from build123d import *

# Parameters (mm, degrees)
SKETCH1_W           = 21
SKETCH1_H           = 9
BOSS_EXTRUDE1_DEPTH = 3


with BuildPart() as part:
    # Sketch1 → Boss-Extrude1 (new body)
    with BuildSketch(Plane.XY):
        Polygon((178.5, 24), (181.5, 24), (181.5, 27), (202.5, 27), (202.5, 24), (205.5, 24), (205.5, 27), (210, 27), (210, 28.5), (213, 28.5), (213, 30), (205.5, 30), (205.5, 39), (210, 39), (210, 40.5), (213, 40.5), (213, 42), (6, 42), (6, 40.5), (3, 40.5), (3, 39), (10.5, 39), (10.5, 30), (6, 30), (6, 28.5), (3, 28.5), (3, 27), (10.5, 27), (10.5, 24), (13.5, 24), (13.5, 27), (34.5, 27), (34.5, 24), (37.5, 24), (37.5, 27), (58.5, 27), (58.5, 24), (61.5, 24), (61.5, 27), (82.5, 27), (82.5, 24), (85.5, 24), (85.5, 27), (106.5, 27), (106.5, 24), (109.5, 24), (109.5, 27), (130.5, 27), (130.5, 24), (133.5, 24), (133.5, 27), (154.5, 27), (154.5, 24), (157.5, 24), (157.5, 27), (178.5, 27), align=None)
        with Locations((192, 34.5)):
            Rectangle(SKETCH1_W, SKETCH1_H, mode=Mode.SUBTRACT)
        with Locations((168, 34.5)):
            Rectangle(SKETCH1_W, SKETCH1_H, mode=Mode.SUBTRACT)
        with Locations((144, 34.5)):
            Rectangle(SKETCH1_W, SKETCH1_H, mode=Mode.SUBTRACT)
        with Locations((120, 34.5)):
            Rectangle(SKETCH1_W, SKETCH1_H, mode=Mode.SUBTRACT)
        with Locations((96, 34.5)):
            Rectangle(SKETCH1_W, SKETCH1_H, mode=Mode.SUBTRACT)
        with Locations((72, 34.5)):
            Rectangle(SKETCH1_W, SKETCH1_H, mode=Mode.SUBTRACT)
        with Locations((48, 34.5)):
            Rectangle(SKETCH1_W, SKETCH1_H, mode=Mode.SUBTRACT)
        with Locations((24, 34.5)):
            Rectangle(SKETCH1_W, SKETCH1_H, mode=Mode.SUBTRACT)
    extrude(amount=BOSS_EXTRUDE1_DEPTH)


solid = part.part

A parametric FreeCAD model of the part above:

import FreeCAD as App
import Part
import Sketcher

V = App.Vector

doc = App.newDocument("Part")
body = doc.addObject("PartDesign::Body", "Body")

# Sketch on XY plane
sketch1 = doc.addObject("Sketcher::SketchObject", "Sketch")
body.addObject(sketch1)
sketch1.AttachmentSupport = (doc.XY_Plane, [""])
sketch1.MapMode = "FlatFace"
sketch1.addGeometry([
    Part.LineSegment(V(178.5, 24, 0), V(181.5, 24, 0)),  # 0
    Part.LineSegment(V(181.5, 24, 0), V(181.5, 27, 0)),  # 1
    Part.LineSegment(V(181.5, 27, 0), V(202.5, 27, 0)),  # 2
    Part.LineSegment(V(202.5, 27, 0), V(202.5, 24, 0)),  # 3
    Part.LineSegment(V(202.5, 24, 0), V(205.5, 24, 0)),  # 4
    Part.LineSegment(V(205.5, 24, 0), V(205.5, 27, 0)),  # 5
    Part.LineSegment(V(205.5, 27, 0), V(210, 27, 0)),  # 6
    Part.LineSegment(V(210, 27, 0), V(210, 28.5, 0)),  # 7
    Part.LineSegment(V(210, 28.5, 0), V(213, 28.5, 0)),  # 8
    Part.LineSegment(V(213, 28.5, 0), V(213, 30, 0)),  # 9
    Part.LineSegment(V(213, 30, 0), V(205.5, 30, 0)),  # 10
    Part.LineSegment(V(205.5, 30, 0), V(205.5, 39, 0)),  # 11
    Part.LineSegment(V(205.5, 39, 0), V(210, 39, 0)),  # 12
    Part.LineSegment(V(210, 39, 0), V(210, 40.5, 0)),  # 13
    Part.LineSegment(V(210, 40.5, 0), V(213, 40.5, 0)),  # 14
    Part.LineSegment(V(213, 40.5, 0), V(213, 42, 0)),  # 15
    Part.LineSegment(V(213, 42, 0), V(6, 42, 0)),  # 16
    Part.LineSegment(V(6, 42, 0), V(6, 40.5, 0)),  # 17
    Part.LineSegment(V(6, 40.5, 0), V(3, 40.5, 0)),  # 18
    Part.LineSegment(V(3, 40.5, 0), V(3, 39, 0)),  # 19
    Part.LineSegment(V(3, 39, 0), V(10.5, 39, 0)),  # 20
    Part.LineSegment(V(10.5, 39, 0), V(10.5, 30, 0)),  # 21
    Part.LineSegment(V(10.5, 30, 0), V(6, 30, 0)),  # 22
    Part.LineSegment(V(6, 30, 0), V(6, 28.5, 0)),  # 23
    Part.LineSegment(V(6, 28.5, 0), V(3, 28.5, 0)),  # 24
    Part.LineSegment(V(3, 28.5, 0), V(3, 27, 0)),  # 25
    Part.LineSegment(V(3, 27, 0), V(10.5, 27, 0)),  # 26
    Part.LineSegment(V(10.5, 27, 0), V(10.5, 24, 0)),  # 27
    Part.LineSegment(V(10.5, 24, 0), V(13.5, 24, 0)),  # 28
    Part.LineSegment(V(13.5, 24, 0), V(13.5, 27, 0)),  # 29
    Part.LineSegment(V(13.5, 27, 0), V(34.5, 27, 0)),  # 30
    Part.LineSegment(V(34.5, 27, 0), V(34.5, 24, 0)),  # 31
    Part.LineSegment(V(34.5, 24, 0), V(37.5, 24, 0)),  # 32
    Part.LineSegment(V(37.5, 24, 0), V(37.5, 27, 0)),  # 33
    Part.LineSegment(V(37.5, 27, 0), V(58.5, 27, 0)),  # 34
    Part.LineSegment(V(58.5, 27, 0), V(58.5, 24, 0)),  # 35
    Part.LineSegment(V(58.5, 24, 0), V(61.5, 24, 0)),  # 36
    Part.LineSegment(V(61.5, 24, 0), V(61.5, 27, 0)),  # 37
    Part.LineSegment(V(61.5, 27, 0), V(82.5, 27, 0)),  # 38
    Part.LineSegment(V(82.5, 27, 0), V(82.5, 24, 0)),  # 39
    Part.LineSegment(V(82.5, 24, 0), V(85.5, 24, 0)),  # 40
    Part.LineSegment(V(85.5, 24, 0), V(85.5, 27, 0)),  # 41
    Part.LineSegment(V(85.5, 27, 0), V(106.5, 27, 0)),  # 42
    Part.LineSegment(V(106.5, 27, 0), V(106.5, 24, 0)),  # 43
    Part.LineSegment(V(106.5, 24, 0), V(109.5, 24, 0)),  # 44
    Part.LineSegment(V(109.5, 24, 0), V(109.5, 27, 0)),  # 45
    Part.LineSegment(V(109.5, 27, 0), V(130.5, 27, 0)),  # 46
    Part.LineSegment(V(130.5, 27, 0), V(130.5, 24, 0)),  # 47
    Part.LineSegment(V(130.5, 24, 0), V(133.5, 24, 0)),  # 48
    Part.LineSegment(V(133.5, 24, 0), V(133.5, 27, 0)),  # 49
    Part.LineSegment(V(133.5, 27, 0), V(154.5, 27, 0)),  # 50
    Part.LineSegment(V(154.5, 27, 0), V(154.5, 24, 0)),  # 51
    Part.LineSegment(V(154.5, 24, 0), V(157.5, 24, 0)),  # 52
    Part.LineSegment(V(157.5, 24, 0), V(157.5, 27, 0)),  # 53
    Part.LineSegment(V(157.5, 27, 0), V(178.5, 27, 0)),  # 54
    Part.LineSegment(V(178.5, 27, 0), V(178.5, 24, 0)),  # 55
    Part.LineSegment(V(34.5, 30, 0), V(13.5, 30, 0)),  # 56
    Part.LineSegment(V(13.5, 30, 0), V(13.5, 39, 0)),  # 57
    Part.LineSegment(V(13.5, 39, 0), V(34.5, 39, 0)),  # 58
    Part.LineSegment(V(34.5, 39, 0), V(34.5, 30, 0)),  # 59
    Part.LineSegment(V(58.5, 30, 0), V(37.5, 30, 0)),  # 60
    Part.LineSegment(V(37.5, 30, 0), V(37.5, 39, 0)),  # 61
    Part.LineSegment(V(37.5, 39, 0), V(58.5, 39, 0)),  # 62
    Part.LineSegment(V(58.5, 39, 0), V(58.5, 30, 0)),  # 63
    Part.LineSegment(V(82.5, 30, 0), V(61.5, 30, 0)),  # 64
    Part.LineSegment(V(61.5, 30, 0), V(61.5, 39, 0)),  # 65
    Part.LineSegment(V(61.5, 39, 0), V(82.5, 39, 0)),  # 66
    Part.LineSegment(V(82.5, 39, 0), V(82.5, 30, 0)),  # 67
    Part.LineSegment(V(106.5, 30, 0), V(85.5, 30, 0)),  # 68
    Part.LineSegment(V(85.5, 30, 0), V(85.5, 39, 0)),  # 69
    Part.LineSegment(V(85.5, 39, 0), V(106.5, 39, 0)),  # 70
    Part.LineSegment(V(106.5, 39, 0), V(106.5, 30, 0)),  # 71
    Part.LineSegment(V(130.5, 30, 0), V(109.5, 30, 0)),  # 72
    Part.LineSegment(V(109.5, 30, 0), V(109.5, 39, 0)),  # 73
    Part.LineSegment(V(109.5, 39, 0), V(130.5, 39, 0)),  # 74
    Part.LineSegment(V(130.5, 39, 0), V(130.5, 30, 0)),  # 75
    Part.LineSegment(V(154.5, 30, 0), V(133.5, 30, 0)),  # 76
    Part.LineSegment(V(133.5, 30, 0), V(133.5, 39, 0)),  # 77
    Part.LineSegment(V(133.5, 39, 0), V(154.5, 39, 0)),  # 78
    Part.LineSegment(V(154.5, 39, 0), V(154.5, 30, 0)),  # 79
    Part.LineSegment(V(178.5, 30, 0), V(157.5, 30, 0)),  # 80
    Part.LineSegment(V(157.5, 30, 0), V(157.5, 39, 0)),  # 81
    Part.LineSegment(V(157.5, 39, 0), V(178.5, 39, 0)),  # 82
    Part.LineSegment(V(178.5, 39, 0), V(178.5, 30, 0)),  # 83
    Part.LineSegment(V(202.5, 30, 0), V(181.5, 30, 0)),  # 84
    Part.LineSegment(V(181.5, 30, 0), V(181.5, 39, 0)),  # 85
    Part.LineSegment(V(181.5, 39, 0), V(202.5, 39, 0)),  # 86
    Part.LineSegment(V(202.5, 39, 0), V(202.5, 30, 0)),  # 87
], False)
sketch1.addConstraint([
    Sketcher.Constraint("Coincident", 0, 2, 1, 1),
    Sketcher.Constraint("Coincident", 1, 2, 2, 1),
    Sketcher.Constraint("Coincident", 2, 2, 3, 1),
    Sketcher.Constraint("Coincident", 3, 2, 4, 1),
    Sketcher.Constraint("Coincident", 4, 2, 5, 1),
    Sketcher.Constraint("Coincident", 5, 2, 6, 1),
    Sketcher.Constraint("Coincident", 6, 2, 7, 1),
    Sketcher.Constraint("Coincident", 7, 2, 8, 1),
    Sketcher.Constraint("Coincident", 8, 2, 9, 1),
    Sketcher.Constraint("Coincident", 9, 2, 10, 1),
    Sketcher.Constraint("Coincident", 10, 2, 11, 1),
    Sketcher.Constraint("Coincident", 11, 2, 12, 1),
    Sketcher.Constraint("Coincident", 12, 2, 13, 1),
    Sketcher.Constraint("Coincident", 13, 2, 14, 1),
    Sketcher.Constraint("Coincident", 14, 2, 15, 1),
    Sketcher.Constraint("Coincident", 15, 2, 16, 1),
    Sketcher.Constraint("Coincident", 16, 2, 17, 1),
    Sketcher.Constraint("Coincident", 17, 2, 18, 1),
    Sketcher.Constraint("Coincident", 18, 2, 19, 1),
    Sketcher.Constraint("Coincident", 19, 2, 20, 1),
    Sketcher.Constraint("Coincident", 20, 2, 21, 1),
    Sketcher.Constraint("Coincident", 21, 2, 22, 1),
    Sketcher.Constraint("Coincident", 22, 2, 23, 1),
    Sketcher.Constraint("Coincident", 23, 2, 24, 1),
    Sketcher.Constraint("Coincident", 24, 2, 25, 1),
    Sketcher.Constraint("Coincident", 25, 2, 26, 1),
    Sketcher.Constraint("Coincident", 26, 2, 27, 1),
    Sketcher.Constraint("Coincident", 27, 2, 28, 1),
    Sketcher.Constraint("Coincident", 28, 2, 29, 1),
    Sketcher.Constraint("Coincident", 29, 2, 30, 1),
    Sketcher.Constraint("Coincident", 30, 2, 31, 1),
    Sketcher.Constraint("Coincident", 31, 2, 32, 1),
    Sketcher.Constraint("Coincident", 32, 2, 33, 1),
    Sketcher.Constraint("Coincident", 33, 2, 34, 1),
    Sketcher.Constraint("Coincident", 34, 2, 35, 1),
    Sketcher.Constraint("Coincident", 35, 2, 36, 1),
    Sketcher.Constraint("Coincident", 36, 2, 37, 1),
    Sketcher.Constraint("Coincident", 37, 2, 38, 1),
    Sketcher.Constraint("Coincident", 38, 2, 39, 1),
    Sketcher.Constraint("Coincident", 39, 2, 40, 1),
    Sketcher.Constraint("Coincident", 40, 2, 41, 1),
    Sketcher.Constraint("Coincident", 41, 2, 42, 1),
    Sketcher.Constraint("Coincident", 42, 2, 43, 1),
    Sketcher.Constraint("Coincident", 43, 2, 44, 1),
    Sketcher.Constraint("Coincident", 44, 2, 45, 1),
    Sketcher.Constraint("Coincident", 45, 2, 46, 1),
    Sketcher.Constraint("Coincident", 46, 2, 47, 1),
    Sketcher.Constraint("Coincident", 47, 2, 48, 1),
    Sketcher.Constraint("Coincident", 48, 2, 49, 1),
    Sketcher.Constraint("Coincident", 49, 2, 50, 1),
    Sketcher.Constraint("Coincident", 50, 2, 51, 1),
    Sketcher.Constraint("Coincident", 51, 2, 52, 1),
    Sketcher.Constraint("Coincident", 52, 2, 53, 1),
    Sketcher.Constraint("Coincident", 53, 2, 54, 1),
    Sketcher.Constraint("Coincident", 54, 2, 55, 1),
    Sketcher.Constraint("Coincident", 55, 2, 0, 1),
    Sketcher.Constraint("Coincident", 56, 2, 57, 1),
    Sketcher.Constraint("Coincident", 57, 2, 58, 1),
    Sketcher.Constraint("Coincident", 58, 2, 59, 1),
    Sketcher.Constraint("Coincident", 59, 2, 56, 1),
    Sketcher.Constraint("Coincident", 60, 2, 61, 1),
    Sketcher.Constraint("Coincident", 61, 2, 62, 1),
    Sketcher.Constraint("Coincident", 62, 2, 63, 1),
    Sketcher.Constraint("Coincident", 63, 2, 60, 1),
    Sketcher.Constraint("Coincident", 64, 2, 65, 1),
    Sketcher.Constraint("Coincident", 65, 2, 66, 1),
    Sketcher.Constraint("Coincident", 66, 2, 67, 1),
    Sketcher.Constraint("Coincident", 67, 2, 64, 1),
    Sketcher.Constraint("Coincident", 68, 2, 69, 1),
    Sketcher.Constraint("Coincident", 69, 2, 70, 1),
    Sketcher.Constraint("Coincident", 70, 2, 71, 1),
    Sketcher.Constraint("Coincident", 71, 2, 68, 1),
    Sketcher.Constraint("Coincident", 72, 2, 73, 1),
    Sketcher.Constraint("Coincident", 73, 2, 74, 1),
    Sketcher.Constraint("Coincident", 74, 2, 75, 1),
    Sketcher.Constraint("Coincident", 75, 2, 72, 1),
    Sketcher.Constraint("Coincident", 76, 2, 77, 1),
    Sketcher.Constraint("Coincident", 77, 2, 78, 1),
    Sketcher.Constraint("Coincident", 78, 2, 79, 1),
    Sketcher.Constraint("Coincident", 79, 2, 76, 1),
    Sketcher.Constraint("Coincident", 80, 2, 81, 1),
    Sketcher.Constraint("Coincident", 81, 2, 82, 1),
    Sketcher.Constraint("Coincident", 82, 2, 83, 1),
    Sketcher.Constraint("Coincident", 83, 2, 80, 1),
    Sketcher.Constraint("Coincident", 84, 2, 85, 1),
    Sketcher.Constraint("Coincident", 85, 2, 86, 1),
    Sketcher.Constraint("Coincident", 86, 2, 87, 1),
    Sketcher.Constraint("Coincident", 87, 2, 84, 1),
    Sketcher.Constraint("Horizontal", 0),
    Sketcher.Constraint("Vertical", 1),
    Sketcher.Constraint("Horizontal", 2),
    Sketcher.Constraint("Vertical", 3),
    Sketcher.Constraint("Horizontal", 4),
    Sketcher.Constraint("Vertical", 5),
    Sketcher.Constraint("Horizontal", 6),
    Sketcher.Constraint("Vertical", 7),
    Sketcher.Constraint("Horizontal", 8),
    Sketcher.Constraint("Vertical", 9),
    Sketcher.Constraint("Horizontal", 10),
    Sketcher.Constraint("Vertical", 11),
    Sketcher.Constraint("Horizontal", 12),
    Sketcher.Constraint("Vertical", 13),
    Sketcher.Constraint("Horizontal", 14),
    Sketcher.Constraint("Vertical", 15),
    Sketcher.Constraint("Horizontal", 16),
    Sketcher.Constraint("Vertical", 17),
    Sketcher.Constraint("Horizontal", 18),
    Sketcher.Constraint("Vertical", 19),
    Sketcher.Constraint("Horizontal", 20),
    Sketcher.Constraint("Vertical", 21),
    Sketcher.Constraint("Horizontal", 22),
    Sketcher.Constraint("Vertical", 23),
    Sketcher.Constraint("Horizontal", 24),
    Sketcher.Constraint("Vertical", 25),
    Sketcher.Constraint("Horizontal", 26),
    Sketcher.Constraint("Vertical", 27),
    Sketcher.Constraint("Horizontal", 28),
    Sketcher.Constraint("Vertical", 29),
    Sketcher.Constraint("Horizontal", 30),
    Sketcher.Constraint("Vertical", 31),
    Sketcher.Constraint("Horizontal", 32),
    Sketcher.Constraint("Vertical", 33),
    Sketcher.Constraint("Horizontal", 34),
    Sketcher.Constraint("Vertical", 35),
    Sketcher.Constraint("Horizontal", 36),
    Sketcher.Constraint("Vertical", 37),
    Sketcher.Constraint("Horizontal", 38),
    Sketcher.Constraint("Vertical", 39),
    Sketcher.Constraint("Horizontal", 40),
    Sketcher.Constraint("Vertical", 41),
    Sketcher.Constraint("Horizontal", 42),
    Sketcher.Constraint("Vertical", 43),
    Sketcher.Constraint("Horizontal", 44),
    Sketcher.Constraint("Vertical", 45),
    Sketcher.Constraint("Horizontal", 46),
    Sketcher.Constraint("Vertical", 47),
    Sketcher.Constraint("Horizontal", 48),
    Sketcher.Constraint("Vertical", 49),
    Sketcher.Constraint("Horizontal", 50),
    Sketcher.Constraint("Vertical", 51),
    Sketcher.Constraint("Horizontal", 52),
    Sketcher.Constraint("Vertical", 53),
    Sketcher.Constraint("Horizontal", 54),
    Sketcher.Constraint("Vertical", 55),
    Sketcher.Constraint("Horizontal", 56),
    Sketcher.Constraint("Vertical", 57),
    Sketcher.Constraint("Horizontal", 58),
    Sketcher.Constraint("Vertical", 59),
    Sketcher.Constraint("Horizontal", 60),
    Sketcher.Constraint("Vertical", 61),
    Sketcher.Constraint("Horizontal", 62),
    Sketcher.Constraint("Vertical", 63),
    Sketcher.Constraint("Horizontal", 64),
    Sketcher.Constraint("Vertical", 65),
    Sketcher.Constraint("Horizontal", 66),
    Sketcher.Constraint("Vertical", 67),
    Sketcher.Constraint("Horizontal", 68),
    Sketcher.Constraint("Vertical", 69),
    Sketcher.Constraint("Horizontal", 70),
    Sketcher.Constraint("Vertical", 71),
    Sketcher.Constraint("Horizontal", 72),
    Sketcher.Constraint("Vertical", 73),
    Sketcher.Constraint("Horizontal", 74),
    Sketcher.Constraint("Vertical", 75),
    Sketcher.Constraint("Horizontal", 76),
    Sketcher.Constraint("Vertical", 77),
    Sketcher.Constraint("Horizontal", 78),
    Sketcher.Constraint("Vertical", 79),
    Sketcher.Constraint("Horizontal", 80),
    Sketcher.Constraint("Vertical", 81),
    Sketcher.Constraint("Horizontal", 82),
    Sketcher.Constraint("Vertical", 83),
    Sketcher.Constraint("Horizontal", 84),
    Sketcher.Constraint("Vertical", 85),
    Sketcher.Constraint("Horizontal", 86),
    Sketcher.Constraint("Vertical", 87),
    Sketcher.Constraint("Horizontal", 0, 2, 3, 2),
    Sketcher.Constraint("Horizontal", 2, 2, 5, 2),
    Sketcher.Constraint("Horizontal", 14, 2, 17, 2),
    Sketcher.Constraint("Horizontal", 12, 2, 19, 2),
    Sketcher.Constraint("Horizontal", 10, 2, 21, 2),
    Sketcher.Constraint("Horizontal", 8, 2, 23, 2),
    Sketcher.Constraint("Horizontal", 6, 2, 25, 2),
    Sketcher.Constraint("Horizontal", 4, 2, 27, 2),
    Sketcher.Constraint("Horizontal", 26, 2, 29, 2),
    Sketcher.Constraint("Horizontal", 28, 2, 31, 2),
    Sketcher.Constraint("Horizontal", 30, 2, 33, 2),
    Sketcher.Constraint("Horizontal", 32, 2, 35, 2),
    Sketcher.Constraint("Horizontal", 34, 2, 37, 2),
    Sketcher.Constraint("Horizontal", 36, 2, 39, 2),
    Sketcher.Constraint("Horizontal", 38, 2, 41, 2),
    Sketcher.Constraint("Horizontal", 40, 2, 43, 2),
    Sketcher.Constraint("Horizontal", 42, 2, 45, 2),
    Sketcher.Constraint("Horizontal", 44, 2, 47, 2),
    Sketcher.Constraint("Horizontal", 46, 2, 49, 2),
    Sketcher.Constraint("Horizontal", 48, 2, 51, 2),
    Sketcher.Constraint("Horizontal", 50, 2, 53, 2),
    Sketcher.Constraint("Horizontal", 22, 2, 56, 2),
    Sketcher.Constraint("Horizontal", 20, 2, 57, 2),
    Sketcher.Constraint("Horizontal", 59, 2, 60, 2),
    Sketcher.Constraint("Horizontal", 58, 2, 61, 2),
    Sketcher.Constraint("Horizontal", 63, 2, 64, 2),
    Sketcher.Constraint("Horizontal", 62, 2, 65, 2),
    Sketcher.Constraint("Horizontal", 67, 2, 68, 2),
    Sketcher.Constraint("Horizontal", 66, 2, 69, 2),
    Sketcher.Constraint("Horizontal", 71, 2, 72, 2),
    Sketcher.Constraint("Horizontal", 70, 2, 73, 2),
    Sketcher.Constraint("Horizontal", 75, 2, 76, 2),
    Sketcher.Constraint("Horizontal", 74, 2, 77, 2),
    Sketcher.Constraint("Horizontal", 79, 2, 80, 2),
    Sketcher.Constraint("Horizontal", 78, 2, 81, 2),
    Sketcher.Constraint("Horizontal", 83, 2, 84, 2),
    Sketcher.Constraint("Horizontal", 82, 2, 85, 2),
    Sketcher.Constraint("Vertical", 5, 2, 10, 2),
    Sketcher.Constraint("Vertical", 7, 2, 12, 2),
    Sketcher.Constraint("Vertical", 9, 2, 14, 2),
    Sketcher.Constraint("Vertical", 17, 2, 22, 2),
    Sketcher.Constraint("Vertical", 19, 2, 24, 2),
    Sketcher.Constraint("Vertical", 21, 2, 26, 2),
    Sketcher.Constraint("Vertical", 29, 2, 56, 2),
    Sketcher.Constraint("Vertical", 31, 2, 58, 2),
    Sketcher.Constraint("Vertical", 33, 2, 60, 2),
    Sketcher.Constraint("Vertical", 35, 2, 62, 2),
    Sketcher.Constraint("Vertical", 37, 2, 64, 2),
    Sketcher.Constraint("Vertical", 39, 2, 66, 2),
    Sketcher.Constraint("Vertical", 41, 2, 68, 2),
    Sketcher.Constraint("Vertical", 43, 2, 70, 2),
    Sketcher.Constraint("Vertical", 45, 2, 72, 2),
    Sketcher.Constraint("Vertical", 47, 2, 74, 2),
    Sketcher.Constraint("Vertical", 49, 2, 76, 2),
    Sketcher.Constraint("Vertical", 51, 2, 78, 2),
    Sketcher.Constraint("Vertical", 53, 2, 80, 2),
    Sketcher.Constraint("Vertical", 55, 2, 82, 2),
    Sketcher.Constraint("Vertical", 1, 2, 84, 2),
    Sketcher.Constraint("Vertical", 3, 2, 86, 2),
    Sketcher.Constraint("Equal", 0, 4),
    Sketcher.Constraint("Equal", 4, 8),
    Sketcher.Constraint("Equal", 14, 18),
    Sketcher.Constraint("Equal", 10, 20),
    Sketcher.Constraint("Equal", 24, 28),
    Sketcher.Constraint("Equal", 2, 30),
    Sketcher.Constraint("Equal", 28, 32),
    Sketcher.Constraint("Equal", 30, 34),
    Sketcher.Constraint("Equal", 32, 36),
    Sketcher.Constraint("Equal", 34, 38),
    Sketcher.Constraint("Equal", 36, 40),
    Sketcher.Constraint("Equal", 38, 42),
    Sketcher.Constraint("Equal", 40, 44),
    Sketcher.Constraint("Equal", 42, 46),
    Sketcher.Constraint("Equal", 44, 48),
    Sketcher.Constraint("Equal", 46, 50),
    Sketcher.Constraint("Equal", 48, 52),
    Sketcher.Constraint("Equal", 50, 54),
    Sketcher.Constraint("Equal", 52, 1),
    Sketcher.Constraint("Equal", 7, 9),
    Sketcher.Constraint("Equal", 9, 13),
    Sketcher.Constraint("Equal", 13, 15),
    Sketcher.Constraint("DistanceX", 0, 1, 0, 2, 3.0),
    Sketcher.Constraint("DistanceX", 2, 1, 2, 2, 21.0),
    Sketcher.Constraint("DistanceX", 16, 2, 16, 1, 207.0),
    Sketcher.Constraint("DistanceY", 11, 1, 11, 2, 9.0),
    Sketcher.Constraint("DistanceY", 7, 1, 7, 2, 1.5),
    Sketcher.Constraint("DistanceY", -1, 1, 0, 2, 24.0),
    Sketcher.Constraint("DistanceX", -1, 1, 6, 2, 210.0),
])
pad1 = doc.addObject("PartDesign::Pad", "Pad")
body.addObject(pad1)
pad1.Profile = sketch1
pad1.Length = 3

doc.recompute()
